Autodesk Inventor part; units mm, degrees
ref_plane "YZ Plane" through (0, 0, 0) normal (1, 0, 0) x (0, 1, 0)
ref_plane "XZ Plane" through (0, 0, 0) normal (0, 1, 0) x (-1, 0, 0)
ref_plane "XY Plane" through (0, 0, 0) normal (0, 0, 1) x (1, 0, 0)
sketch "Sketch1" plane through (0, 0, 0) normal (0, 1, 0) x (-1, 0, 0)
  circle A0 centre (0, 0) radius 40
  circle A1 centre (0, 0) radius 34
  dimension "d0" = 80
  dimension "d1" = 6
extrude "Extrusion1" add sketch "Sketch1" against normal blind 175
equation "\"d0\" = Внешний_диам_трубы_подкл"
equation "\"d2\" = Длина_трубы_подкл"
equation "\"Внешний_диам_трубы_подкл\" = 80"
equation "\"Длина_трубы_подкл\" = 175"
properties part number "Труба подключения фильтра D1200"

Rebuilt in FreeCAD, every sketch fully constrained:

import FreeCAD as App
import Part
import Sketcher

doc = App.newDocument("Part")
body = doc.addObject("PartDesign::Body", "Body")

# Sketch on XZ plane
sketch1 = body.newObject("Sketcher::SketchObject", "Sketch")
sketch1.AttachmentSupport = (doc.getObject("XZ_Plane"), [""])
sketch1.MapMode = "FlatFace"
sketch1.addGeometry(Part.Circle(App.Vector(0, 0, 0), App.Vector(0, 0, 1), 40), False)
sketch1.addGeometry(Part.Circle(App.Vector(0, 0, 0), App.Vector(0, 0, 1), 34), False)
sketch1.addConstraint(Sketcher.Constraint("Coincident", 0, 3, -1, 1))
sketch1.addConstraint(Sketcher.Constraint("Coincident", 1, 3, -1, 1))
sketch1.addConstraint(Sketcher.Constraint("Diameter", 0, 80.0))
sketch1.addConstraint(Sketcher.Constraint("Diameter", 1, 68.0))
pad1 = body.newObject("PartDesign::Pad", "Pad")
pad1.Profile = sketch1
pad1.Length = 175

doc.recompute()
